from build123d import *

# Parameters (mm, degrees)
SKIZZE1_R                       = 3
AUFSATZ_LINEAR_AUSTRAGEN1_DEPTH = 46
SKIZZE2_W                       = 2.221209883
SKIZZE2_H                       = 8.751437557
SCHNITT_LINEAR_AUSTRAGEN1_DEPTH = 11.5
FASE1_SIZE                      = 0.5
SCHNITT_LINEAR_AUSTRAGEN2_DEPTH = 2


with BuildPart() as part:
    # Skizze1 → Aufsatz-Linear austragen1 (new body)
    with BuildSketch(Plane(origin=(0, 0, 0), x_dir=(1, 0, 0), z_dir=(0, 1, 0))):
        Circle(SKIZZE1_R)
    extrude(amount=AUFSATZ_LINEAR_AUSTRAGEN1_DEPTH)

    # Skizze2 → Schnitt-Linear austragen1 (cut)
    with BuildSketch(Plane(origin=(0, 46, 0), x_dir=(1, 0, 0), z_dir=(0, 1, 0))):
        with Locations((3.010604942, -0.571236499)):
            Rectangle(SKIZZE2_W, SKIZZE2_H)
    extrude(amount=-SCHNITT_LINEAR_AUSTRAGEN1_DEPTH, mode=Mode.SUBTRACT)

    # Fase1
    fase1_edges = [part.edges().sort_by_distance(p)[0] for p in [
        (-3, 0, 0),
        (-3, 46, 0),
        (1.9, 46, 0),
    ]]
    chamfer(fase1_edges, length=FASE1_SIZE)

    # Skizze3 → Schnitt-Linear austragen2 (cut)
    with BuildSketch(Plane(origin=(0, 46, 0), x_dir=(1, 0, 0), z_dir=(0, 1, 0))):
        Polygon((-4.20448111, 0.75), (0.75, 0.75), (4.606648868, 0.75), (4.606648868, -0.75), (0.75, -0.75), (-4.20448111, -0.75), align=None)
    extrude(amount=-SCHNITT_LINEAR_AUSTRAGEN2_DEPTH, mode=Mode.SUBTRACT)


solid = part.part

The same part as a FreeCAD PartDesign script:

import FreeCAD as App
import Part
import Sketcher
from FreeCAD import Vector


def edges_at(feature, points):
    """Names of the edges that pass closest to the given points."""
    edges = feature.Shape.Edges
    near = lambda p: min(range(len(edges)), key=lambda i: edges[i].distToShape(Part.Vertex(*p))[0])
    return sorted({f"Edge{near(p) + 1}" for p in points})


def add_polygon(sketch, points):
    """Adds a closed chain of lines whose ends are joined by coincident constraints."""
    first, n = sketch.GeometryCount, len(points)
    for a, b in zip(points, points[1:] + points[:1]):
        sketch.addGeometry(Part.LineSegment(App.Vector(*a, 0), App.Vector(*b, 0)), False)
    for i in range(n):
        sketch.addConstraint(Sketcher.Constraint("Coincident", first + i, 2, first + (i + 1) % n, 1))

doc = App.newDocument("Part")
body = doc.addObject("PartDesign::Body", "Body")

sketch1 = body.newObject("Sketcher::SketchObject", "Sketch")
sketch1.AttachmentSupport = (doc.getObject("XZ_Plane"), [""])
sketch1.MapMode = "FlatFace"
sketch1.addGeometry(Part.Circle(Vector(0, 0, 0), Vector(0, 0, 1), 3), False)
sketch1.addConstraint(Sketcher.Constraint("Coincident", 0, 3, -1, 1))
sketch1.addConstraint(Sketcher.Constraint("Diameter", 0, 6.0))
pad1 = body.newObject("PartDesign::Pad", "Pad")
pad1.Profile = sketch1
pad1.Length = 46
pad1.Reversed = True

sketch2 = body.newObject("Sketcher::SketchObject", "Sketch001")
sketch2.AttachmentSupport = (doc.getObject("XZ_Plane"), [""])
sketch2.MapMode = "FlatFace"
sketch2.AttachmentOffset = App.Placement(Vector(0, 0, -46), App.Rotation())
add_polygon(sketch2, [(1.9, -3.804482), (1.9, 4.946955), (4.12121, 4.946955), (4.12121, -3.804482)])
sketch2.addConstraint(Sketcher.Constraint("Vertical", 0))
sketch2.addConstraint(Sketcher.Constraint("Horizontal", 1))
sketch2.addConstraint(Sketcher.Constraint("Vertical", 2))
sketch2.addConstraint(Sketcher.Constraint("Horizontal", 3))
sketch2.addConstraint(Sketcher.Constraint("DistanceX", -1, 1, 0, 2, 1.9))
sketch2.addConstraint(Sketcher.Constraint("DistanceX", 1, 1, 1, 2, 2.22121))
sketch2.addConstraint(Sketcher.Constraint("DistanceY", 0, 1, 0, 2, 8.751438))
sketch2.addConstraint(Sketcher.Constraint("DistanceY", -1, 1, 0, 2, 4.946955))
pocket1 = body.newObject("PartDesign::Pocket", "Pocket")
pocket1.Profile = sketch2
pocket1.Length = 11.5
pocket1.Reversed = True
doc.recompute()

chamfer = body.newObject("PartDesign::Chamfer", "Chamfer")
chamfer.Base = (pocket1, edges_at(pocket1, [(-3, 0, 0), (-3, 46, 0), (1.9, 46, 0)]))
chamfer.Size = 0.5

sketch3 = body.newObject("Sketcher::SketchObject", "Sketch002")
sketch3.AttachmentSupport = (doc.getObject("XZ_Plane"), [""])
sketch3.MapMode = "FlatFace"
sketch3.AttachmentOffset = App.Placement(Vector(0, 0, -46), App.Rotation())
add_polygon(sketch3, [(4.606649, -0.75), (-4.204481, -0.75), (-4.204481, 0.75), (4.606649, 0.75)])
sketch3.addConstraint(Sketcher.Constraint("Horizontal", 0))
sketch3.addConstraint(Sketcher.Constraint("Vertical", 1))
sketch3.addConstraint(Sketcher.Constraint("Horizontal", 2))
sketch3.addConstraint(Sketcher.Constraint("Vertical", 3))
sketch3.addConstraint(Sketcher.Constraint("DistanceY", 1, 1, 1, 2, 1.5))
sketch3.addConstraint(Sketcher.Constraint("DistanceY", 0, 2, -1, 1, 0.75))
sketch3.addConstraint(Sketcher.Constraint("DistanceX", 0, 2, 0, 1, 8.81113))
sketch3.addConstraint(Sketcher.Constraint("DistanceX", 0, 2, -1, 1, 4.204481))
pocket2 = body.newObject("PartDesign::Pocket", "Pocket001")
pocket2.Profile = sketch3
pocket2.Length = 2
pocket2.Reversed = True

doc.recompute()
